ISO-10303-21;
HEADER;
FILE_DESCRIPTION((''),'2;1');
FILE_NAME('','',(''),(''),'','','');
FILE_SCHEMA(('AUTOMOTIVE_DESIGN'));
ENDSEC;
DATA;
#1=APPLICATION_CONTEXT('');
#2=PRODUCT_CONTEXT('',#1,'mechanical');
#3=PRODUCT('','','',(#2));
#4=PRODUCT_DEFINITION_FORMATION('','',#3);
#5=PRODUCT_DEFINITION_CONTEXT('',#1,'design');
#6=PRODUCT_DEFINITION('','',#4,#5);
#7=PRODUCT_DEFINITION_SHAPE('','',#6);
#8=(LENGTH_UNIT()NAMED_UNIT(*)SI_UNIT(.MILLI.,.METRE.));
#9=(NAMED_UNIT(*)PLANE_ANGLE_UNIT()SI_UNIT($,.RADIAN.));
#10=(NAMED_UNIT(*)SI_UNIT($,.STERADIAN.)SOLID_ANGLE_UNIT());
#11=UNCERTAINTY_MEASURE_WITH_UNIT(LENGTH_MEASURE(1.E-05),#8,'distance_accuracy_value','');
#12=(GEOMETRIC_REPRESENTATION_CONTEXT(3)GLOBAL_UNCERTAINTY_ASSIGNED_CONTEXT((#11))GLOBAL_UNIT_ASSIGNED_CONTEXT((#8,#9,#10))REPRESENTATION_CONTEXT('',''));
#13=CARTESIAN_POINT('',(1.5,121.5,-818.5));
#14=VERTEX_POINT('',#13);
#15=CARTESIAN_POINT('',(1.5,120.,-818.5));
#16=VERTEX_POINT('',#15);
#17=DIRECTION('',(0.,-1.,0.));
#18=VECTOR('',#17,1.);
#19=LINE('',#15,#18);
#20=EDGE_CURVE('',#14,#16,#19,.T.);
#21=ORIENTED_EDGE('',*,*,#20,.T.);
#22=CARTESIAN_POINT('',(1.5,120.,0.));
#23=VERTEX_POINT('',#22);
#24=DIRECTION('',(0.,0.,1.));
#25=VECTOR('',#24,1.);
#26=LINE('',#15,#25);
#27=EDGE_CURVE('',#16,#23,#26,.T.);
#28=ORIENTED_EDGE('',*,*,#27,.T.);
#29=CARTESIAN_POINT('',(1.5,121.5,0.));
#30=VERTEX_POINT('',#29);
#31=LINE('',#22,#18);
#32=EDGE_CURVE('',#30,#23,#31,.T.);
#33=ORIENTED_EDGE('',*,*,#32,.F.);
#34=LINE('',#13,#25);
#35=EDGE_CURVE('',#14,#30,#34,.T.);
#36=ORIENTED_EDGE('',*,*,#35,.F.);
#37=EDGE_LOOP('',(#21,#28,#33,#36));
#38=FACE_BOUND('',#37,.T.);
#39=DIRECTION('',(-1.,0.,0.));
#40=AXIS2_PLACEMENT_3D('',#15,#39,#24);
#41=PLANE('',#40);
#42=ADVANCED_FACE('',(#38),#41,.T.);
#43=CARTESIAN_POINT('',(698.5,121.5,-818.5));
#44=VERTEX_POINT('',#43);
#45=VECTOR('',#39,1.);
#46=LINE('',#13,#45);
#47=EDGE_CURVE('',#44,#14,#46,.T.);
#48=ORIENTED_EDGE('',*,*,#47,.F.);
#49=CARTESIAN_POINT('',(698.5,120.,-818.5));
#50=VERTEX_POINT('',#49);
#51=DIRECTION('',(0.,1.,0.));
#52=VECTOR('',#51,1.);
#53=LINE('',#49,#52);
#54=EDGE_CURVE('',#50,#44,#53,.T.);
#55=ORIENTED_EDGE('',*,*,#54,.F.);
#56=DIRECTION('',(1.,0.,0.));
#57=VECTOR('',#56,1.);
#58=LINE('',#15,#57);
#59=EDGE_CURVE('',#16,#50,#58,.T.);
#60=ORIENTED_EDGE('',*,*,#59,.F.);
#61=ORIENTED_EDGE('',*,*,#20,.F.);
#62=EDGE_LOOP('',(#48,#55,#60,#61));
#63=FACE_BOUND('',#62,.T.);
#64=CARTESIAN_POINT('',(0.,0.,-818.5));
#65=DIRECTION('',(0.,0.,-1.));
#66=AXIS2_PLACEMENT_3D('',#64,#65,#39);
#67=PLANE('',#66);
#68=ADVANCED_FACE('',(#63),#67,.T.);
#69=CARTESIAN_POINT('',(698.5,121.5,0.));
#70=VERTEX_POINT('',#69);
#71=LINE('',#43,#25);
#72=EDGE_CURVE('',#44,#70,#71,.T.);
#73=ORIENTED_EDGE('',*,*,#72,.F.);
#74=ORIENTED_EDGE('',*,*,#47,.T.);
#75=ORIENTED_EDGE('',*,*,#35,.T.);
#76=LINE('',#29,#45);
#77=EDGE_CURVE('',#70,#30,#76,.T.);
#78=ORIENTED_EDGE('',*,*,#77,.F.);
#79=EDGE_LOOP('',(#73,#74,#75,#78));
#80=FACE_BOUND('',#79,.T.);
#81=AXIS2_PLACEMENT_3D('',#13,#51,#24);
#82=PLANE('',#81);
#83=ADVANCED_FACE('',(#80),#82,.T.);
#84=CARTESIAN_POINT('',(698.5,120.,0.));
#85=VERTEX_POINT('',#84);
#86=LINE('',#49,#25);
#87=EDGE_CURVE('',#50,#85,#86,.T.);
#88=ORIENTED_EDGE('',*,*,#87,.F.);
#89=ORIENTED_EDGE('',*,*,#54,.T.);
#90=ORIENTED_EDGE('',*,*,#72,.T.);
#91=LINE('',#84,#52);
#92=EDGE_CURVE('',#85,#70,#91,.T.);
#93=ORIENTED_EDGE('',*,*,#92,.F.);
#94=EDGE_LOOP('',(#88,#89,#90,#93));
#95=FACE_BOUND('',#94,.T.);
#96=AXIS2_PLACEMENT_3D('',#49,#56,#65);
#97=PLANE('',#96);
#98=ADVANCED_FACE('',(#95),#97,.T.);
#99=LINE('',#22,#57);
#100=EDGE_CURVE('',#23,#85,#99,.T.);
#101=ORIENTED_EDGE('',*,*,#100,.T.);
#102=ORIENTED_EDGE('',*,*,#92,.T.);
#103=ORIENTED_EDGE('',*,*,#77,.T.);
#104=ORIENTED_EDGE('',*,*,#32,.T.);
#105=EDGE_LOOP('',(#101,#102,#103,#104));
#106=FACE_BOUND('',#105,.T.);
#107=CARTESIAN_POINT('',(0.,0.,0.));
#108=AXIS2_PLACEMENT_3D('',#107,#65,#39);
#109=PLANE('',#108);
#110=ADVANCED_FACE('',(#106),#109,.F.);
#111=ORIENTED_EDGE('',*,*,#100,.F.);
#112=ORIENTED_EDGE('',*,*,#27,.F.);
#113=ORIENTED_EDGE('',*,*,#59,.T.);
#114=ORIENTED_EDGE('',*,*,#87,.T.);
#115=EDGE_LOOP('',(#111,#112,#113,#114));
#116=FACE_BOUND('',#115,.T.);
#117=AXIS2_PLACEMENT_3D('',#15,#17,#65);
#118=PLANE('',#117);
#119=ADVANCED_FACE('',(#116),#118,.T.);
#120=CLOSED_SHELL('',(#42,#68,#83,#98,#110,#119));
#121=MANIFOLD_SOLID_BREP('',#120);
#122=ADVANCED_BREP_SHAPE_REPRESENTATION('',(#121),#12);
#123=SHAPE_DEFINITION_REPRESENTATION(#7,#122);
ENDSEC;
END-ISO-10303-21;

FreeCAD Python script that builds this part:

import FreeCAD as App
import Part
import Sketcher
from FreeCAD import Vector
Q = App.Units.Quantity


def add_polygon(sketch, points):
    """Adds a closed chain of lines whose ends are joined by coincident constraints."""
    first, n = sketch.GeometryCount, len(points)
    for a, b in zip(points, points[1:] + points[:1]):
        sketch.addGeometry(Part.LineSegment(App.Vector(*a, 0), App.Vector(*b, 0)), False)
    for i in range(n):
        sketch.addConstraint(Sketcher.Constraint("Coincident", first + i, 2, first + (i + 1) % n, 1))

doc = App.newDocument("Part")
body = doc.addObject("PartDesign::Body", "Body")

# Sketch on XY plane
sketch1 = doc.addObject("Sketcher::SketchObject", "Sketch")
body.addObject(sketch1)
sketch1.AttachmentSupport = (doc.XY_Plane, [""])
sketch1.MapMode = "FlatFace"
add_polygon(sketch1, [(1.5, 121.5), (1.5, 120), (698.5, 120), (698.5, 121.5)])  # lines 0-3
sketch1.addConstraint(Sketcher.Constraint("Vertical", 0))
sketch1.addConstraint(Sketcher.Constraint("Horizontal", 1))
sketch1.addConstraint(Sketcher.Constraint("Vertical", 2))
sketch1.addConstraint(Sketcher.Constraint("Horizontal", 3))
sketch1.addConstraint(Sketcher.Constraint("DistanceX", 1, 1, 1, 2, Q("697 mm")))
sketch1.addConstraint(Sketcher.Constraint("DistanceY", 0, 2, 0, 1, Q("1.5 mm")))
sketch1.addConstraint(Sketcher.Constraint("DistanceY", -1, 1, 0, 2, Q("120 mm")))
sketch1.addConstraint(Sketcher.Constraint("DistanceX", -1, 1, 0, 2, Q("1.5 mm")))
pad1 = doc.addObject("PartDesign::Pad", "Pad")
body.addObject(pad1)
pad1.Profile = sketch1
pad1.Length = 818.5
pad1.Reversed = True

doc.recompute()
